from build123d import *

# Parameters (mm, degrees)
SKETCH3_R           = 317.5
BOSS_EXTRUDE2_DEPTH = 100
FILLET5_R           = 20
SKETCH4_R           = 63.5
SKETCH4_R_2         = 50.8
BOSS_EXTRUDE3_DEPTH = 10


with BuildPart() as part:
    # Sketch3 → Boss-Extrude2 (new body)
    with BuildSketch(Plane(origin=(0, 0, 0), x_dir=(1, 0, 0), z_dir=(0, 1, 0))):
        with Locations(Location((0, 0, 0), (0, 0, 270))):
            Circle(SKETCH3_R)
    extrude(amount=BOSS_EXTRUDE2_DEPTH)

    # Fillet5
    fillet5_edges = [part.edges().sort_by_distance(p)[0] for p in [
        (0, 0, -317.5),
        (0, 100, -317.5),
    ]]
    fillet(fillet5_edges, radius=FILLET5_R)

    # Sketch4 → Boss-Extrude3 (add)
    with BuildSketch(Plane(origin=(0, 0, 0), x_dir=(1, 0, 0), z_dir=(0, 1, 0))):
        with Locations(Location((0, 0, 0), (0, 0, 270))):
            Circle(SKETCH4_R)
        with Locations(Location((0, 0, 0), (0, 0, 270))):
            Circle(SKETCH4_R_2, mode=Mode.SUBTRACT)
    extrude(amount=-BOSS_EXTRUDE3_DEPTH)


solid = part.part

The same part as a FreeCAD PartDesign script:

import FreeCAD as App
import Part
import Sketcher


def edges_at(feature, points):
    """Names of the edges that pass closest to the given points."""
    edges = feature.Shape.Edges
    near = lambda p: min(range(len(edges)), key=lambda i: edges[i].distToShape(Part.Vertex(*p))[0])
    return sorted({f"Edge{near(p) + 1}" for p in points})

doc = App.newDocument("Part")
body = doc.addObject("PartDesign::Body", "Body")

# Sketch on XZ plane
sketch1 = doc.addObject("Sketcher::SketchObject", "Sketch")
body.addObject(sketch1)
sketch1.AttachmentSupport = (doc.XZ_Plane, [""])
sketch1.MapMode = "FlatFace"
sketch1.addGeometry(Part.Circle(App.Vector(0, 0, 0), App.Vector(0, 0, 1), 318), False)
sketch1.addConstraint(Sketcher.Constraint("Coincident", 0, 3, -1, 1))
sketch1.addConstraint(Sketcher.Constraint("Diameter", 0, 635.0))
pad1 = doc.addObject("PartDesign::Pad", "Pad")
body.addObject(pad1)
pad1.Profile = sketch1
pad1.Length = 100
pad1.Reversed = True
doc.recompute()

fillet = doc.addObject("PartDesign::Fillet", "Fillet")
body.addObject(fillet)
fillet.Base = (pad1, edges_at(pad1, [(0, 0, -317.5), (0, 100, -317.5)]))
fillet.Radius = 20

# Sketch on XZ plane
sketch2 = doc.addObject("Sketcher::SketchObject", "Sketch001")
body.addObject(sketch2)
sketch2.AttachmentSupport = (doc.XZ_Plane, [""])
sketch2.MapMode = "FlatFace"
sketch2.addGeometry(Part.Circle(App.Vector(0, 0, 0), App.Vector(0, 0, 1), 64), False)
sketch2.addGeometry(Part.Circle(App.Vector(0, 0, 0), App.Vector(0, 0, 1), 51), False)
sketch2.addConstraint(Sketcher.Constraint("Coincident", 0, 3, -1, 1))
sketch2.addConstraint(Sketcher.Constraint("Coincident", 1, 3, -1, 1))
sketch2.addConstraint(Sketcher.Constraint("Diameter", 0, 127.0))
sketch2.addConstraint(Sketcher.Constraint("Diameter", 1, 101.6))
pad2 = doc.addObject("PartDesign::Pad", "Pad001")
body.addObject(pad2)
pad2.Profile = sketch2
pad2.Length = 10

doc.recompute()
